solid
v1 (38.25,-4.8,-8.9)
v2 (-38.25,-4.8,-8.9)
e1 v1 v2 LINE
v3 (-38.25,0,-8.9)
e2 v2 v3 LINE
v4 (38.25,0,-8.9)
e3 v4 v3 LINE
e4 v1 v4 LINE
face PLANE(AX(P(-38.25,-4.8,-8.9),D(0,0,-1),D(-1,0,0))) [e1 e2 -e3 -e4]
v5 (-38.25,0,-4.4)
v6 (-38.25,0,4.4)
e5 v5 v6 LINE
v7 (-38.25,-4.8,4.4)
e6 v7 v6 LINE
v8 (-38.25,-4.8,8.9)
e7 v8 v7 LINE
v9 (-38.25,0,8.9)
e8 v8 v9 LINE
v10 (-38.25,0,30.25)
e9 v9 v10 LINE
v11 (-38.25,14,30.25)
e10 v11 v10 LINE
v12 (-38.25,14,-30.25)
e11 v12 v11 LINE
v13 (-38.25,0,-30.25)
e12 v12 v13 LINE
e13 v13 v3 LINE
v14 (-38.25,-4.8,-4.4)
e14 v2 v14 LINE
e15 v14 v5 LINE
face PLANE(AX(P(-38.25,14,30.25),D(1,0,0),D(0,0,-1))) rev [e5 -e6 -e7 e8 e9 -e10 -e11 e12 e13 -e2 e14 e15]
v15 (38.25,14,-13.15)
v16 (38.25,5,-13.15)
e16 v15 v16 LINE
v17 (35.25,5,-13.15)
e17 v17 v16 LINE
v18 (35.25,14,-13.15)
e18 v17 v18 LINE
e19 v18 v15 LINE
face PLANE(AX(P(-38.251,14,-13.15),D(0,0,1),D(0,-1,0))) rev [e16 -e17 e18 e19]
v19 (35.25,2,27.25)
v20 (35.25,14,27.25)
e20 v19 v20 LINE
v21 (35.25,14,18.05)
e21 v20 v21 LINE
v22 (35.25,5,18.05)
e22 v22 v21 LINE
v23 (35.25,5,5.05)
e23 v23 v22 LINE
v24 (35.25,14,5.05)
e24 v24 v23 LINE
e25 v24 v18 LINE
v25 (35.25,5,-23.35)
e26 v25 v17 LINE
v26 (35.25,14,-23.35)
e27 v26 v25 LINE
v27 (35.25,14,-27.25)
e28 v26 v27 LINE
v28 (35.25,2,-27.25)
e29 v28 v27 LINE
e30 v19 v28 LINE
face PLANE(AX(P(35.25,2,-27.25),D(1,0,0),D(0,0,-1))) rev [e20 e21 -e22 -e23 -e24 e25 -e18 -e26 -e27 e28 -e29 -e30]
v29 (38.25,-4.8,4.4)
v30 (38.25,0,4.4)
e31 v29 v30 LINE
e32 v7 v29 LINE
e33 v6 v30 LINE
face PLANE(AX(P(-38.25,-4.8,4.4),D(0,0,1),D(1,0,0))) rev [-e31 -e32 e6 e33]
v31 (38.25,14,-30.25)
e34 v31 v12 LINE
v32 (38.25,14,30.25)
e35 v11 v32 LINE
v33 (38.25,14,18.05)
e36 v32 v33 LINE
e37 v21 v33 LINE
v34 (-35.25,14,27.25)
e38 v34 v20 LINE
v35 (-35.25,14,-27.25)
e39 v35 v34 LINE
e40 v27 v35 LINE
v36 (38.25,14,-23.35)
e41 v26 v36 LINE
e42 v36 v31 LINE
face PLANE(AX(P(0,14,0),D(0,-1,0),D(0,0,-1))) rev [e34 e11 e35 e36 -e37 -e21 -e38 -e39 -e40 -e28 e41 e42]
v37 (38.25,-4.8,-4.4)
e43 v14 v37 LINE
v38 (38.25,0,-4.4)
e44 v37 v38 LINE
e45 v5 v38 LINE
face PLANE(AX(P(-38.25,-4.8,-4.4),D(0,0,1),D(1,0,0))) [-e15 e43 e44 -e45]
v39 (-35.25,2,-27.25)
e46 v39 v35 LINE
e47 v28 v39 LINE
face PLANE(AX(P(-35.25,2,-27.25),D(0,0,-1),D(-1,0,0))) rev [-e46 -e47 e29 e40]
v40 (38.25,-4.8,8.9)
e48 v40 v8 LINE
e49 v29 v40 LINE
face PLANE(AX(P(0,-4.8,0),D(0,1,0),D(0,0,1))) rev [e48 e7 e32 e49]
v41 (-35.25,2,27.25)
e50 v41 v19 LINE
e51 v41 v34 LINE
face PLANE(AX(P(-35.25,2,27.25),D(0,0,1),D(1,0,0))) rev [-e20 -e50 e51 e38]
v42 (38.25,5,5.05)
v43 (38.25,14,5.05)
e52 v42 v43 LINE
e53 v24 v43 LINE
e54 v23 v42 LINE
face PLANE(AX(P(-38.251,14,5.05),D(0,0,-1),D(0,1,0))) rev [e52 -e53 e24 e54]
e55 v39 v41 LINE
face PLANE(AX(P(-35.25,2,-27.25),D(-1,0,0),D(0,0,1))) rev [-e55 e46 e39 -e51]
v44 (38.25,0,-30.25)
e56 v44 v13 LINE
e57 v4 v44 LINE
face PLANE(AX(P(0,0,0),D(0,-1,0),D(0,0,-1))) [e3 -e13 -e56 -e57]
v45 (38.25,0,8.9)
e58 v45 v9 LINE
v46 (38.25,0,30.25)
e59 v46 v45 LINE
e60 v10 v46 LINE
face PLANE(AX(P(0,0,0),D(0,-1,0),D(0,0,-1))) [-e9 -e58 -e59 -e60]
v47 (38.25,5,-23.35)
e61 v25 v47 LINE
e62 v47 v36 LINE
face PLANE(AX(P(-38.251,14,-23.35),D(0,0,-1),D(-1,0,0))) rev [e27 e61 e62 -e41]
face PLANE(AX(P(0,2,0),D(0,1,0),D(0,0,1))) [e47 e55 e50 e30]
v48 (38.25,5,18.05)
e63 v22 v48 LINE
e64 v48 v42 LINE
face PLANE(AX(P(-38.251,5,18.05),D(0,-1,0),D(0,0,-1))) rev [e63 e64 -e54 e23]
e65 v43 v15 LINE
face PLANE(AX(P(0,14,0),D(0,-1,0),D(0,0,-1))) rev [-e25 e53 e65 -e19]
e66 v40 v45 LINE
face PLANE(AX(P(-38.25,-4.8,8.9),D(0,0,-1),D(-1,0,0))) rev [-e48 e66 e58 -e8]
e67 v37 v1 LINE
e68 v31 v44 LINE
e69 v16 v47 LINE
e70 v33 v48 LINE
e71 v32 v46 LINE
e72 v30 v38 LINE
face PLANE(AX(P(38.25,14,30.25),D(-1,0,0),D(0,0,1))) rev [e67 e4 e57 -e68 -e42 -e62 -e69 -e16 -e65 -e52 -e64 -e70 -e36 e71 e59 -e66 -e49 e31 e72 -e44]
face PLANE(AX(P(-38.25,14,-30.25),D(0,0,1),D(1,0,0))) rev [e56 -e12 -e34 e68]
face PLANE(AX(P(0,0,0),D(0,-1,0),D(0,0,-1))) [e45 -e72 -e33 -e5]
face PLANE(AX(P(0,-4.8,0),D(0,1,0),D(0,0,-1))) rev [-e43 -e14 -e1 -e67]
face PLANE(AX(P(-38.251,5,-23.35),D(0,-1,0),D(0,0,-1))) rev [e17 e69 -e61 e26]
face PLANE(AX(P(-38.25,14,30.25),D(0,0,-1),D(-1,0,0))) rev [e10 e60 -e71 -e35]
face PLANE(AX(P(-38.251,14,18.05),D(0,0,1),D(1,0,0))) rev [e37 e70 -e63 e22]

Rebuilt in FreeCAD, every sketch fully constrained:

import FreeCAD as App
import Part
import Sketcher

doc = App.newDocument("Part")
body = doc.addObject("PartDesign::Body", "Body")

# Sketch on XZ plane
sketch1 = doc.addObject("Sketcher::SketchObject", "Sketch")
body.addObject(sketch1)
sketch1.AttachmentSupport = (doc.XZ_Plane, [""])
sketch1.MapMode = "FlatFace"
sketch1.addGeometry(Part.LineSegment(App.Vector(-38, -30, 0), App.Vector(-38, 30, 0)), False)
sketch1.addGeometry(Part.LineSegment(App.Vector(-38, 30, 0), App.Vector(38, 30, 0)), False)
sketch1.addGeometry(Part.LineSegment(App.Vector(38, 30, 0), App.Vector(38, -30, 0)), False)
sketch1.addGeometry(Part.LineSegment(App.Vector(38, -30, 0), App.Vector(-38, -30, 0)), False)
sketch1.addConstraint(Sketcher.Constraint("Coincident", 0, 2, 1, 1))
sketch1.addConstraint(Sketcher.Constraint("Coincident", 1, 2, 2, 1))
sketch1.addConstraint(Sketcher.Constraint("Coincident", 2, 2, 3, 1))
sketch1.addConstraint(Sketcher.Constraint("Coincident", 3, 2, 0, 1))
sketch1.addConstraint(Sketcher.Constraint("Vertical", 0))
sketch1.addConstraint(Sketcher.Constraint("Horizontal", 1))
sketch1.addConstraint(Sketcher.Constraint("Vertical", 2))
sketch1.addConstraint(Sketcher.Constraint("Horizontal", 3))
sketch1.addConstraint(Sketcher.Constraint("Symmetric", 0, 2, 2, 2, -1, 1))
sketch1.addConstraint(Sketcher.Constraint("DistanceX", 1, 1, 1, 2, 76.5))
sketch1.addConstraint(Sketcher.Constraint("DistanceY", 0, 1, 0, 2, 60.5))
pad1 = doc.addObject("PartDesign::Pad", "Pad")
body.addObject(pad1)
pad1.Profile = sketch1
pad1.Length = 14
pad1.Reversed = True

# Sketch on XZ plane
sketch2 = doc.addObject("Sketcher::SketchObject", "Sketch001")
body.addObject(sketch2)
sketch2.AttachmentSupport = (doc.XZ_Plane, [""])
sketch2.MapMode = "FlatFace"
sketch2.AttachmentOffset = App.Placement(App.Vector(0, 0, -14), App.Rotation())
sketch2.addGeometry(Part.LineSegment(App.Vector(-35, -27, 0), App.Vector(-35, 27, 0)), False)
sketch2.addGeometry(Part.LineSegment(App.Vector(-35, 27, 0), App.Vector(35, 27, 0)), False)
sketch2.addGeometry(Part.LineSegment(App.Vector(35, 27, 0), App.Vector(35, -27, 0)), False)
sketch2.addGeometry(Part.LineSegment(App.Vector(35, -27, 0), App.Vector(-35, -27, 0)), False)
sketch2.addConstraint(Sketcher.Constraint("Coincident", 0, 2, 1, 1))
sketch2.addConstraint(Sketcher.Constraint("Coincident", 1, 2, 2, 1))
sketch2.addConstraint(Sketcher.Constraint("Coincident", 2, 2, 3, 1))
sketch2.addConstraint(Sketcher.Constraint("Coincident", 3, 2, 0, 1))
sketch2.addConstraint(Sketcher.Constraint("Vertical", 0))
sketch2.addConstraint(Sketcher.Constraint("Horizontal", 1))
sketch2.addConstraint(Sketcher.Constraint("Vertical", 2))
sketch2.addConstraint(Sketcher.Constraint("Horizontal", 3))
sketch2.addConstraint(Sketcher.Constraint("Symmetric", 0, 2, 2, 2, -1, 1))
sketch2.addConstraint(Sketcher.Constraint("DistanceX", 1, 1, 1, 2, 70.5))
sketch2.addConstraint(Sketcher.Constraint("DistanceY", 0, 1, 0, 2, 54.5))
pocket1 = doc.addObject("PartDesign::Pocket", "Pocket")
body.addObject(pocket1)
pocket1.Profile = sketch2
pocket1.Length = 12
pocket1.Reversed = True

# Sketch on YZ plane
sketch3 = doc.addObject("Sketcher::SketchObject", "Sketch002")
body.addObject(sketch3)
sketch3.AttachmentSupport = (doc.YZ_Plane, [""])
sketch3.MapMode = "FlatFace"
sketch3.AttachmentOffset = App.Placement(App.Vector(0, 0, 38.25), App.Rotation())
sketch3.addGeometry(Part.LineSegment(App.Vector(14, 18, 0), App.Vector(5, 18, 0)), False)
sketch3.addGeometry(Part.LineSegment(App.Vector(5, 18, 0), App.Vector(5, 5, 0)), False)
sketch3.addGeometry(Part.LineSegment(App.Vector(5, 5, 0), App.Vector(14, 5, 0)), False)
sketch3.addGeometry(Part.LineSegment(App.Vector(14, 5, 0), App.Vector(14, 18, 0)), False)
sketch3.addConstraint(Sketcher.Constraint("Coincident", 0, 2, 1, 1))
sketch3.addConstraint(Sketcher.Constraint("Coincident", 1, 2, 2, 1))
sketch3.addConstraint(Sketcher.Constraint("Coincident", 2, 2, 3, 1))
sketch3.addConstraint(Sketcher.Constraint("Coincident", 3, 2, 0, 1))
sketch3.addConstraint(Sketcher.Constraint("Horizontal", 0))
sketch3.addConstraint(Sketcher.Constraint("Vertical", 1))
sketch3.addConstraint(Sketcher.Constraint("Horizontal", 2))
sketch3.addConstraint(Sketcher.Constraint("Vertical", 3))
sketch3.addConstraint(Sketcher.Constraint("DistanceX", 0, 2, 0, 1, 9.0))
sketch3.addConstraint(Sketcher.Constraint("DistanceY", 1, 2, 1, 1, 13.0))
sketch3.addConstraint(Sketcher.Constraint("DistanceX", -1, 1, 0, 2, 5.0))
sketch3.addConstraint(Sketcher.Constraint("DistanceY", -1, 1, 0, 2, 18.05))
pocket2 = doc.addObject("PartDesign::Pocket", "Pocket001")
body.addObject(pocket2)
pocket2.Profile = sketch3
pocket2.Type = "UpToFirst"

# Sketch on YZ plane
sketch4 = doc.addObject("Sketcher::SketchObject", "Sketch003")
body.addObject(sketch4)
sketch4.AttachmentSupport = (doc.YZ_Plane, [""])
sketch4.MapMode = "FlatFace"
sketch4.AttachmentOffset = App.Placement(App.Vector(0, 0, 38.25), App.Rotation())
sketch4.addGeometry(Part.LineSegment(App.Vector(14, -13, 0), App.Vector(5, -13, 0)), False)
sketch4.addGeometry(Part.LineSegment(App.Vector(5, -13, 0), App.Vector(5, -23, 0)), False)
sketch4.addGeometry(Part.LineSegment(App.Vector(5, -23, 0), App.Vector(14, -23, 0)), False)
sketch4.addGeometry(Part.LineSegment(App.Vector(14, -23, 0), App.Vector(14, -13, 0)), False)
sketch4.addConstraint(Sketcher.Constraint("Coincident", 0, 2, 1, 1))
sketch4.addConstraint(Sketcher.Constraint("Coincident", 1, 2, 2, 1))
sketch4.addConstraint(Sketcher.Constraint("Coincident", 2, 2, 3, 1))
sketch4.addConstraint(Sketcher.Constraint("Coincident", 3, 2, 0, 1))
sketch4.addConstraint(Sketcher.Constraint("Horizontal", 0))
sketch4.addConstraint(Sketcher.Constraint("Vertical", 1))
sketch4.addConstraint(Sketcher.Constraint("Horizontal", 2))
sketch4.addConstraint(Sketcher.Constraint("Vertical", 3))
sketch4.addConstraint(Sketcher.Constraint("DistanceX", 0, 2, 0, 1, 9.0))
sketch4.addConstraint(Sketcher.Constraint("DistanceY", 1, 2, 1, 1, 10.2))
sketch4.addConstraint(Sketcher.Constraint("DistanceX", -1, 1, 0, 2, 5.0))
sketch4.addConstraint(Sketcher.Constraint("DistanceY", 0, 2, -1, 1, 13.15))
pocket3 = doc.addObject("PartDesign::Pocket", "Pocket002")
body.addObject(pocket3)
pocket3.Profile = sketch4
pocket3.Type = "UpToFirst"

# Sketch on XZ plane
sketch5 = doc.addObject("Sketcher::SketchObject", "Sketch004")
body.addObject(sketch5)
sketch5.AttachmentSupport = (doc.XZ_Plane, [""])
sketch5.MapMode = "FlatFace"
sketch5.addGeometry(Part.LineSegment(App.Vector(-38.2, 8.9, 0), App.Vector(-38.2, 4.4, 0)), False)
sketch5.addGeometry(Part.LineSegment(App.Vector(-38.2, 4.4, 0), App.Vector(38.2, 4.4, 0)), False)
sketch5.addGeometry(Part.LineSegment(App.Vector(38.2, 4.4, 0), App.Vector(38.2, 8.9, 0)), False)
sketch5.addGeometry(Part.LineSegment(App.Vector(38.2, 8.9, 0), App.Vector(-38.2, 8.9, 0)), False)
sketch5.addConstraint(Sketcher.Constraint("Coincident", 0, 2, 1, 1))
sketch5.addConstraint(Sketcher.Constraint("Coincident", 1, 2, 2, 1))
sketch5.addConstraint(Sketcher.Constraint("Coincident", 2, 2, 3, 1))
sketch5.addConstraint(Sketcher.Constraint("Coincident", 3, 2, 0, 1))
sketch5.addConstraint(Sketcher.Constraint("Vertical", 0))
sketch5.addConstraint(Sketcher.Constraint("Horizontal", 1))
sketch5.addConstraint(Sketcher.Constraint("Vertical", 2))
sketch5.addConstraint(Sketcher.Constraint("Horizontal", 3))
sketch5.addConstraint(Sketcher.Constraint("DistanceX", 1, 1, 1, 2, 76.5))
sketch5.addConstraint(Sketcher.Constraint("DistanceY", 0, 2, 0, 1, 4.5))
sketch5.addConstraint(Sketcher.Constraint("DistanceY", -1, 1, 0, 2, 4.4))
sketch5.addConstraint(Sketcher.Constraint("DistanceX", 0, 2, -1, 1, 38.25))
pad2 = doc.addObject("PartDesign::Pad", "Pad001")
body.addObject(pad2)
pad2.Profile = sketch5
pad2.Length = 4.8
doc.recompute()

mirrored = doc.addObject("PartDesign::Mirrored", "Mirrored")
body.addObject(mirrored)
mirrored.Originals = [pad2]
mirrored.MirrorPlane = (doc.XY_Plane, [""])
body.Tip = mirrored

doc.recompute()
